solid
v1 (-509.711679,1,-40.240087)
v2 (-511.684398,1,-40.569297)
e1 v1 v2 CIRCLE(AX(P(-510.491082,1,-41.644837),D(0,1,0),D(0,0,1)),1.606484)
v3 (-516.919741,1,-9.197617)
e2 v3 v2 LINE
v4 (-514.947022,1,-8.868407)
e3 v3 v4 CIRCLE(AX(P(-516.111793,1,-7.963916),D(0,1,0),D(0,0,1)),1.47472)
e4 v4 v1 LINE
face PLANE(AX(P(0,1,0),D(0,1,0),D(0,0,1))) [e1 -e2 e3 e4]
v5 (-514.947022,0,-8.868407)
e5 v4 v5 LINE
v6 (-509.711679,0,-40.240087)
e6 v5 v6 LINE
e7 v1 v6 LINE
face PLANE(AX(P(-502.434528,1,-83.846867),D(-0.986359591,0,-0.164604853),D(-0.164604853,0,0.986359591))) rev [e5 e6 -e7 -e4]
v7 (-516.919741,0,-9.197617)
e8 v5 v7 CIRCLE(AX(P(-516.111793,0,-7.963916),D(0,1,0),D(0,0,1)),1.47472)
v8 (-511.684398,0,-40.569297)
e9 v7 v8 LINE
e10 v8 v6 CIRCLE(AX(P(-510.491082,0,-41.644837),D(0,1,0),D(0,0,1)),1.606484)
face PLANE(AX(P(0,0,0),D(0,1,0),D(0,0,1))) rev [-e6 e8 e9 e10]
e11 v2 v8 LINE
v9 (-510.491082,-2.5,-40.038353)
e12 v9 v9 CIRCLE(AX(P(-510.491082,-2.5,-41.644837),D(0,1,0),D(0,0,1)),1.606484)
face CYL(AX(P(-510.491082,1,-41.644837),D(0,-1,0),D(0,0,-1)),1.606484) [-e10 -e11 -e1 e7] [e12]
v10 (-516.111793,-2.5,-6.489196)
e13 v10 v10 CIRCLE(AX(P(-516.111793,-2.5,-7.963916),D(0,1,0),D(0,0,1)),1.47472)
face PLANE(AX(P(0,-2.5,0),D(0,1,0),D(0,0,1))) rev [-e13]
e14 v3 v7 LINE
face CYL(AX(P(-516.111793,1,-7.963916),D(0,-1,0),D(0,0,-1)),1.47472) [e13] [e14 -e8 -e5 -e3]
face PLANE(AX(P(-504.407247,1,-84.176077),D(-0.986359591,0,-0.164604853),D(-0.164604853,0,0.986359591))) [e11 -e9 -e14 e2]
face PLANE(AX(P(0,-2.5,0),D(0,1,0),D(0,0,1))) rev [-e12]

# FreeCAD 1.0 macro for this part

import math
import FreeCAD as App
import Part
import Sketcher
from FreeCAD import Vector
Q = App.Units.Quantity

doc = App.newDocument("Part")
body = doc.addObject("PartDesign::Body", "Body")

sketch1 = body.newObject("Sketcher::SketchObject", "Sketch")
sketch1.AttachmentSupport = (doc.getObject("XZ_Plane"), [""])
sketch1.MapMode = "FlatFace"
sketch1.addGeometry(Part.LineSegment(Vector(-514.947022, -8.868407, 0), Vector(-509.711679, -40.240087, 0)), False)
sketch1.addGeometry(Part.ArcOfCircle(Part.Circle(Vector(-510.491082, -41.644837, 0), Vector(0, 0, 1), 1.606484), math.radians(137.971564), math.radians(420.976996)), False)
sketch1.addGeometry(Part.LineSegment(Vector(-511.684398, -40.569297, 0), Vector(-516.919741, -9.197617, 0)), False)
sketch1.addGeometry(Part.ArcOfCircle(Part.Circle(Vector(-516.111793, -7.963916, 0), Vector(0, 0, 1), 1.47472), math.radians(-37.830757), math.radians(236.779318)), False)
sketch1.addConstraint(Sketcher.Constraint("Coincident", 0, 2, 1, 2))
sketch1.addConstraint(Sketcher.Constraint("Coincident", 1, 1, 2, 1))
sketch1.addConstraint(Sketcher.Constraint("Coincident", 2, 2, 3, 2))
sketch1.addConstraint(Sketcher.Constraint("Coincident", 3, 1, 0, 1))
sketch1.addConstraint(Sketcher.Constraint("Parallel", 0, 2))
sketch1.addConstraint(Sketcher.Constraint("Equal", 0, 2))
sketch1.addConstraint(Sketcher.Constraint("Radius", 3, Q("1.47472 mm")))
sketch1.addConstraint(Sketcher.Constraint("Radius", 1, Q("1.606484 mm")))
sketch1.addConstraint(Sketcher.Constraint("DistanceX", 1, 1, -1, 1, Q("511.684398 mm")))
sketch1.addConstraint(Sketcher.Constraint("DistanceY", 2, 2, 3, 3, Q("1.233701 mm")))
sketch1.addConstraint(Sketcher.Constraint("Distance", 0, Q("31.80552 mm")))
sketch1.addConstraint(Sketcher.Constraint("DistanceX", 1, 3, -1, 1, Q("510.491082 mm")))
sketch1.addConstraint(Sketcher.Constraint("DistanceX", 2, 2, -1, 1, Q("516.919741 mm")))
sketch1.addConstraint(Sketcher.Constraint("DistanceY", 1, 3, -1, 1, Q("41.644837 mm")))
pad1 = body.newObject("PartDesign::Pad", "Pad")
pad1.Profile = sketch1
pad1.Length = 1
pad1.Reversed = True

sketch2 = body.newObject("Sketcher::SketchObject", "Sketch001")
sketch2.AttachmentSupport = (doc.getObject("XZ_Plane"), [""])
sketch2.MapMode = "FlatFace"
sketch2.AttachmentOffset = App.Placement(Vector(0, 0, 2.5), App.Rotation())
sketch2.addGeometry(Part.Circle(Vector(-516.111793, -7.963916, 0), Vector(0, 0, 1), 1.47472), False)
sketch2.addGeometry(Part.Circle(Vector(-510.491082, -41.644837, 0), Vector(0, 0, 1), 1.606484), False)
sketch2.addConstraint(Sketcher.Constraint("Diameter", 0, Q("2.949439 mm")))
sketch2.addConstraint(Sketcher.Constraint("Diameter", 1, Q("3.212967 mm")))
sketch2.addConstraint(Sketcher.Constraint("DistanceX", 1, 3, -1, 1, Q("510.491082 mm")))
sketch2.addConstraint(Sketcher.Constraint("DistanceX", 0, 3, 1, 3, Q("5.620712 mm")))
sketch2.addConstraint(Sketcher.Constraint("DistanceY", 1, 3, 0, 3, Q("33.680921 mm")))
sketch2.addConstraint(Sketcher.Constraint("DistanceY", 0, 3, -1, 1, Q("7.963916 mm")))
pad2 = body.newObject("PartDesign::Pad", "Pad001")
pad2.Profile = sketch2
pad2.Length = 2.5
pad2.Reversed = True

doc.recompute()
